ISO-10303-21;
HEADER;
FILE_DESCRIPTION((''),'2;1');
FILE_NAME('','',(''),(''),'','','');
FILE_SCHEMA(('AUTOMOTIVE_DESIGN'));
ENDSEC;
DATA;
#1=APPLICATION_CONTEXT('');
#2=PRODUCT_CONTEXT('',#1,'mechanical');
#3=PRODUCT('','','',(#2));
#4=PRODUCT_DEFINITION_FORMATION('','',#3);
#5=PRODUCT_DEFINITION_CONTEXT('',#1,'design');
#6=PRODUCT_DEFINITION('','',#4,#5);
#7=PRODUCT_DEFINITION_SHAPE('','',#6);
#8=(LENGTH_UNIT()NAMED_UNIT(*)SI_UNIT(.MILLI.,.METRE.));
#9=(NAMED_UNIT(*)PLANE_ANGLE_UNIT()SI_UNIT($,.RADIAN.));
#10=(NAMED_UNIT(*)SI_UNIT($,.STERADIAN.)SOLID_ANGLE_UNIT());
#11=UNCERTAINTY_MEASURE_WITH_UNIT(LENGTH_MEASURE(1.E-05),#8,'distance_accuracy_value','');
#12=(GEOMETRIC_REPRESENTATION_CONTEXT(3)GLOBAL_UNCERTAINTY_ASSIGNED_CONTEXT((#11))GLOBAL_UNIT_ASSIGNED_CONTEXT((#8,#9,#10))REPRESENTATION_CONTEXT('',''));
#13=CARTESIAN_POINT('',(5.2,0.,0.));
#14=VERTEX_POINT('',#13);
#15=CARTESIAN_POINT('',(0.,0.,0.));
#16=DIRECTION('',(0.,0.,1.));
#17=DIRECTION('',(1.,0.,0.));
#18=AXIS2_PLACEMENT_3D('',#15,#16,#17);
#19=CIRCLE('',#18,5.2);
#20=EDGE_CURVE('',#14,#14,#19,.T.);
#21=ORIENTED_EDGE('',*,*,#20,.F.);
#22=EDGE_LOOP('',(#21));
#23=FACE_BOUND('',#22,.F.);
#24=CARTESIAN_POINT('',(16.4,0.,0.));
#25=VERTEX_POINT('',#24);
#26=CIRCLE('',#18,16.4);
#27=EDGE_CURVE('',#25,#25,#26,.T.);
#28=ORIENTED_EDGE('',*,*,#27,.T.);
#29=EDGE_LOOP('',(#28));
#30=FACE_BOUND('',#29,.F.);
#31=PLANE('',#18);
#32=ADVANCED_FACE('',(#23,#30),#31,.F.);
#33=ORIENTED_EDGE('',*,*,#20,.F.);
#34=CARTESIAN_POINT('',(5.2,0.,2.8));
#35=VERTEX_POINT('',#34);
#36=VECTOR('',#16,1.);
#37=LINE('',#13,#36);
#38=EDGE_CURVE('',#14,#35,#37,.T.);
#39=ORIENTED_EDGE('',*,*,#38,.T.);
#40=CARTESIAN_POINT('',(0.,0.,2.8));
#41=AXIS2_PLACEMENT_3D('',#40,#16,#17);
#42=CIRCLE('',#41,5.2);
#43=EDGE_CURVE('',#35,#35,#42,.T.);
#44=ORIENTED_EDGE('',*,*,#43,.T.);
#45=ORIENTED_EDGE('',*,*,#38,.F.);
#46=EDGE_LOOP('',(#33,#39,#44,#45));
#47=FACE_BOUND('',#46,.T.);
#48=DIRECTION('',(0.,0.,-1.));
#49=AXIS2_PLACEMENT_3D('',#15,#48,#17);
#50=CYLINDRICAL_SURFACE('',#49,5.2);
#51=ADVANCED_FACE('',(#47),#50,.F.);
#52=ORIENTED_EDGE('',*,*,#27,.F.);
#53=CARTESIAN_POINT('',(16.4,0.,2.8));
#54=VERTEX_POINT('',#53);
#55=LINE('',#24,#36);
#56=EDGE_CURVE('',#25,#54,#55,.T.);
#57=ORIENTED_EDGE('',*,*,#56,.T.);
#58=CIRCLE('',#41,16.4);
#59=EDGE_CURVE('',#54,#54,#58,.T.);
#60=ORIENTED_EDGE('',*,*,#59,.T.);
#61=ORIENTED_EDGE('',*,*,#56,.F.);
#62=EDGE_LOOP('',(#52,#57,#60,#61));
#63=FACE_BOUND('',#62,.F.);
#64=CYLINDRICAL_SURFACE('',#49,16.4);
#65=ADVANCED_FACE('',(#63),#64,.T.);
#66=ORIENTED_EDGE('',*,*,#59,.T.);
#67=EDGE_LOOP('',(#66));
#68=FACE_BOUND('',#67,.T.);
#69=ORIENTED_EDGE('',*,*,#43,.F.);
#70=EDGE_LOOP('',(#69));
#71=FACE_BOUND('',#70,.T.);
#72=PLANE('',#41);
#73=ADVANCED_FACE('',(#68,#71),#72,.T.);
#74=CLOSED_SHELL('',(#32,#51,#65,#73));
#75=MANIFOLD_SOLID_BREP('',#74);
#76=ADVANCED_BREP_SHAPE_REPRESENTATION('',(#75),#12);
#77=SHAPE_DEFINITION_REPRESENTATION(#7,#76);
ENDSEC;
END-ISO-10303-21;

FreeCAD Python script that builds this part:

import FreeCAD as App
import Part
import Sketcher
from FreeCAD import Vector

doc = App.newDocument("Part")
body = doc.addObject("PartDesign::Body", "Body")

sketch1 = body.newObject("Sketcher::SketchObject", "Sketch")
sketch1.AttachmentSupport = (doc.getObject("XY_Plane"), [""])
sketch1.MapMode = "FlatFace"
sketch1.addGeometry([
    Part.Circle(Vector(0, 0, 0), Vector(0, 0, 1), 16),
    Part.Circle(Vector(0, 0, 0), Vector(0, 0, 1), 5),
], False)
sketch1.addConstraint([
    Sketcher.Constraint("Coincident", 0, 3, -1, 1),
    Sketcher.Constraint("Coincident", 1, 3, -1, 1),
    Sketcher.Constraint("Diameter", 0, 32.8),
    Sketcher.Constraint("Diameter", 1, 10.4),
])
pad1 = body.newObject("PartDesign::Pad", "Pad")
pad1.Profile = sketch1
pad1.Length = 2.8

doc.recompute()
